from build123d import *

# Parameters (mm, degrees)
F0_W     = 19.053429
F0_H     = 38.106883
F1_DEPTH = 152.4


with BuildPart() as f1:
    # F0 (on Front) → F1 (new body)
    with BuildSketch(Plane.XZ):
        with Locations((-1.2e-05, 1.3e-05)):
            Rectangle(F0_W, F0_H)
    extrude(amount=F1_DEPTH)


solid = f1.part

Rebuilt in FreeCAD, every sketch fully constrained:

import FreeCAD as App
import Part
import Sketcher
Q = App.Units.Quantity

doc = App.newDocument("Part")
params = doc.addObject("Spreadsheet::Sheet", "Params")
for row, (alias, value) in enumerate([
    ("pad1_length", "6 in"),
], start=1):
    params.set(f"A{row}", alias)
    params.set(f"B{row}", "=" + value)
    params.setAlias(f"B{row}", alias)

body = doc.addObject("PartDesign::Body", "Body")

# Sketch on XZ plane
sketch1 = body.newObject("Sketcher::SketchObject", "Sketch")
sketch1.AttachmentSupport = (doc.getObject("XZ_Plane"), [""])
sketch1.MapMode = "FlatFace"
sketch1.addGeometry([
    Part.LineSegment(App.Vector(-10, 19, 0), App.Vector(-10, -19, 0)),
    Part.LineSegment(App.Vector(-10, -19, 0), App.Vector(10, -19, 0)),
    Part.LineSegment(App.Vector(10, -19, 0), App.Vector(10, 19, 0)),
    Part.LineSegment(App.Vector(10, 19, 0), App.Vector(-10, 19, 0)),
], False)
sketch1.addConstraint([
    Sketcher.Constraint("Coincident", 0, 2, 1, 1),
    Sketcher.Constraint("Coincident", 1, 2, 2, 1),
    Sketcher.Constraint("Coincident", 2, 2, 3, 1),
    Sketcher.Constraint("Coincident", 3, 2, 0, 1),
    Sketcher.Constraint("Vertical", 0),
    Sketcher.Constraint("Horizontal", 1),
    Sketcher.Constraint("Vertical", 2),
    Sketcher.Constraint("Horizontal", 3),
    Sketcher.Constraint("DistanceX", 1, 1, 1, 2, Q("19.053429 mm")),
    Sketcher.Constraint("DistanceY", 0, 2, 0, 1, Q("38.106883 mm")),
    Sketcher.Constraint("DistanceY", 0, 2, -1, 1, Q("19.053428 mm")),
    Sketcher.Constraint("DistanceX", 0, 2, -1, 1, Q("9.526727 mm")),
])
pad1 = body.newObject("PartDesign::Pad", "Pad")
pad1.Profile = sketch1
pad1.setExpression("Length", "Params.pad1_length")

doc.recompute()
